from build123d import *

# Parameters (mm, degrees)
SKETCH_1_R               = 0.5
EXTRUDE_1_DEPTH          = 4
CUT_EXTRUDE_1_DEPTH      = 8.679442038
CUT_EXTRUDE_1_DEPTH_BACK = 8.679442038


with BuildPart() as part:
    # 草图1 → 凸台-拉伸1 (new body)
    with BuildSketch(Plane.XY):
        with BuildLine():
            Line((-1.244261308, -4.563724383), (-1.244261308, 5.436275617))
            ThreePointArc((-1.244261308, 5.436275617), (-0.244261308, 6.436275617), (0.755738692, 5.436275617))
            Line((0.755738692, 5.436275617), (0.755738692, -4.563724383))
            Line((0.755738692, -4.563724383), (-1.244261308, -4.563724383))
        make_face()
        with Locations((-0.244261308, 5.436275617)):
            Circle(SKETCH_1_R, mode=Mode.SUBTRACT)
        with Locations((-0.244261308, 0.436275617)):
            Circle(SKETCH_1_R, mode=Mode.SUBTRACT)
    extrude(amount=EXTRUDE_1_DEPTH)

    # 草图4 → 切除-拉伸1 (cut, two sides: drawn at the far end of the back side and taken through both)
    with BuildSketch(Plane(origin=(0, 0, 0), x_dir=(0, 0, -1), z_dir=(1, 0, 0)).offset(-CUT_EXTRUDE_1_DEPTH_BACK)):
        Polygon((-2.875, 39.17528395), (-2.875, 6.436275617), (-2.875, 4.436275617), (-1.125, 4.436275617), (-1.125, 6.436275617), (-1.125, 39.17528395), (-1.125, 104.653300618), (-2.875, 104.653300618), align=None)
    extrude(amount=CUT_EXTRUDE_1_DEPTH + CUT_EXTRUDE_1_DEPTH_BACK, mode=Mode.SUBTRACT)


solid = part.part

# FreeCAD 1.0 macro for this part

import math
import FreeCAD as App
import Part
import Sketcher

V = App.Vector
Q = App.Units.Quantity


def add_polygon(sketch, points):
    """Adds a closed chain of lines whose ends are joined by coincident constraints."""
    first, n = sketch.GeometryCount, len(points)
    for a, b in zip(points, points[1:] + points[:1]):
        sketch.addGeometry(Part.LineSegment(App.Vector(*a, 0), App.Vector(*b, 0)), False)
    for i in range(n):
        sketch.addConstraint(Sketcher.Constraint("Coincident", first + i, 2, first + (i + 1) % n, 1))

doc = App.newDocument("Part")
body = doc.addObject("PartDesign::Body", "Body")

sketch1 = body.newObject("Sketcher::SketchObject", "Sketch")
sketch1.AttachmentSupport = (doc.getObject("XY_Plane"), [""])
sketch1.MapMode = "FlatFace"
sketch1.addGeometry(Part.LineSegment(V(-1.244261, 5.436276, 0), V(-1.244261, -4.563724, 0)), False)
sketch1.addGeometry(Part.LineSegment(V(-1.244261, -4.563724, 0), V(0.755739, -4.563724, 0)), False)
sketch1.addGeometry(Part.LineSegment(V(0.755739, -4.563724, 0), V(0.755739, 5.436276, 0)), False)
sketch1.addGeometry(Part.ArcOfCircle(Part.Circle(V(-0.244261, 5.436276, 0), V(0, 0, 1), 1), math.radians(0), math.radians(180)), False)
sketch1.addGeometry(Part.Circle(V(-0.244261, 0.436276, 0), V(0, 0, 1), 0.5), False)
sketch1.addGeometry(Part.Circle(V(-0.244261, 5.436276, 0), V(0, 0, 1), 0.5), False)
sketch1.addConstraint(Sketcher.Constraint("Coincident", 0, 2, 1, 1))
sketch1.addConstraint(Sketcher.Constraint("Coincident", 1, 2, 2, 1))
sketch1.addConstraint(Sketcher.Constraint("Tangent", 2, 2, 3, 1))
sketch1.addConstraint(Sketcher.Constraint("Tangent", 3, 2, 0, 1))
sketch1.addConstraint(Sketcher.Constraint("Vertical", 0))
sketch1.addConstraint(Sketcher.Constraint("Horizontal", 1))
sketch1.addConstraint(Sketcher.Constraint("Vertical", 2))
sketch1.addConstraint(Sketcher.Constraint("Coincident", 5, 3, 3, 3))
sketch1.addConstraint(Sketcher.Constraint("Equal", 4, 5))
sketch1.addConstraint(Sketcher.Constraint("Vertical", 3, 3, 4, 3))
sketch1.addConstraint(Sketcher.Constraint("Diameter", 4, Q("1 mm")))
sketch1.addConstraint(Sketcher.Constraint("Radius", 3, Q("1 mm")))
sketch1.addConstraint(Sketcher.Constraint("DistanceY", 0, 2, 0, 1, Q("10 mm")))
sketch1.addConstraint(Sketcher.Constraint("DistanceY", 4, 3, 3, 3, Q("5 mm")))
sketch1.addConstraint(Sketcher.Constraint("DistanceX", 3, 3, -1, 1, Q("0.244261 mm")))
sketch1.addConstraint(Sketcher.Constraint("DistanceY", -1, 1, 3, 3, Q("5.436276 mm")))
pad1 = body.newObject("PartDesign::Pad", "Pad")
pad1.Profile = sketch1
pad1.Length = 4

sketch2 = body.newObject("Sketcher::SketchObject", "Sketch001")
sketch2.AttachmentSupport = (doc.getObject("YZ_Plane"), [""])
sketch2.MapMode = "FlatFace"
add_polygon(sketch2, [(4.436276, 2.875), (4.436276, 1.125), (104.653301, 1.125), (104.653301, 2.875)])
sketch2.addConstraint(Sketcher.Constraint("Vertical", 0))
sketch2.addConstraint(Sketcher.Constraint("Horizontal", 1))
sketch2.addConstraint(Sketcher.Constraint("Vertical", 2))
sketch2.addConstraint(Sketcher.Constraint("Horizontal", 3))
sketch2.addConstraint(Sketcher.Constraint("DistanceY", 0, 2, 0, 1, Q("1.75 mm")))
sketch2.addConstraint(Sketcher.Constraint("DistanceY", -1, 1, 0, 2, Q("1.125 mm")))
sketch2.addConstraint(Sketcher.Constraint("DistanceX", -1, 1, 1, 2, Q("104.653301 mm")))
sketch2.addConstraint(Sketcher.Constraint("DistanceX", 1, 1, 1, 2, Q("100.217025 mm")))
pocket1 = body.newObject("PartDesign::Pocket", "Pocket")
pocket1.Profile = sketch2
pocket1.Type = "ThroughAll"
pocket1.Midplane = True

doc.recompute()
